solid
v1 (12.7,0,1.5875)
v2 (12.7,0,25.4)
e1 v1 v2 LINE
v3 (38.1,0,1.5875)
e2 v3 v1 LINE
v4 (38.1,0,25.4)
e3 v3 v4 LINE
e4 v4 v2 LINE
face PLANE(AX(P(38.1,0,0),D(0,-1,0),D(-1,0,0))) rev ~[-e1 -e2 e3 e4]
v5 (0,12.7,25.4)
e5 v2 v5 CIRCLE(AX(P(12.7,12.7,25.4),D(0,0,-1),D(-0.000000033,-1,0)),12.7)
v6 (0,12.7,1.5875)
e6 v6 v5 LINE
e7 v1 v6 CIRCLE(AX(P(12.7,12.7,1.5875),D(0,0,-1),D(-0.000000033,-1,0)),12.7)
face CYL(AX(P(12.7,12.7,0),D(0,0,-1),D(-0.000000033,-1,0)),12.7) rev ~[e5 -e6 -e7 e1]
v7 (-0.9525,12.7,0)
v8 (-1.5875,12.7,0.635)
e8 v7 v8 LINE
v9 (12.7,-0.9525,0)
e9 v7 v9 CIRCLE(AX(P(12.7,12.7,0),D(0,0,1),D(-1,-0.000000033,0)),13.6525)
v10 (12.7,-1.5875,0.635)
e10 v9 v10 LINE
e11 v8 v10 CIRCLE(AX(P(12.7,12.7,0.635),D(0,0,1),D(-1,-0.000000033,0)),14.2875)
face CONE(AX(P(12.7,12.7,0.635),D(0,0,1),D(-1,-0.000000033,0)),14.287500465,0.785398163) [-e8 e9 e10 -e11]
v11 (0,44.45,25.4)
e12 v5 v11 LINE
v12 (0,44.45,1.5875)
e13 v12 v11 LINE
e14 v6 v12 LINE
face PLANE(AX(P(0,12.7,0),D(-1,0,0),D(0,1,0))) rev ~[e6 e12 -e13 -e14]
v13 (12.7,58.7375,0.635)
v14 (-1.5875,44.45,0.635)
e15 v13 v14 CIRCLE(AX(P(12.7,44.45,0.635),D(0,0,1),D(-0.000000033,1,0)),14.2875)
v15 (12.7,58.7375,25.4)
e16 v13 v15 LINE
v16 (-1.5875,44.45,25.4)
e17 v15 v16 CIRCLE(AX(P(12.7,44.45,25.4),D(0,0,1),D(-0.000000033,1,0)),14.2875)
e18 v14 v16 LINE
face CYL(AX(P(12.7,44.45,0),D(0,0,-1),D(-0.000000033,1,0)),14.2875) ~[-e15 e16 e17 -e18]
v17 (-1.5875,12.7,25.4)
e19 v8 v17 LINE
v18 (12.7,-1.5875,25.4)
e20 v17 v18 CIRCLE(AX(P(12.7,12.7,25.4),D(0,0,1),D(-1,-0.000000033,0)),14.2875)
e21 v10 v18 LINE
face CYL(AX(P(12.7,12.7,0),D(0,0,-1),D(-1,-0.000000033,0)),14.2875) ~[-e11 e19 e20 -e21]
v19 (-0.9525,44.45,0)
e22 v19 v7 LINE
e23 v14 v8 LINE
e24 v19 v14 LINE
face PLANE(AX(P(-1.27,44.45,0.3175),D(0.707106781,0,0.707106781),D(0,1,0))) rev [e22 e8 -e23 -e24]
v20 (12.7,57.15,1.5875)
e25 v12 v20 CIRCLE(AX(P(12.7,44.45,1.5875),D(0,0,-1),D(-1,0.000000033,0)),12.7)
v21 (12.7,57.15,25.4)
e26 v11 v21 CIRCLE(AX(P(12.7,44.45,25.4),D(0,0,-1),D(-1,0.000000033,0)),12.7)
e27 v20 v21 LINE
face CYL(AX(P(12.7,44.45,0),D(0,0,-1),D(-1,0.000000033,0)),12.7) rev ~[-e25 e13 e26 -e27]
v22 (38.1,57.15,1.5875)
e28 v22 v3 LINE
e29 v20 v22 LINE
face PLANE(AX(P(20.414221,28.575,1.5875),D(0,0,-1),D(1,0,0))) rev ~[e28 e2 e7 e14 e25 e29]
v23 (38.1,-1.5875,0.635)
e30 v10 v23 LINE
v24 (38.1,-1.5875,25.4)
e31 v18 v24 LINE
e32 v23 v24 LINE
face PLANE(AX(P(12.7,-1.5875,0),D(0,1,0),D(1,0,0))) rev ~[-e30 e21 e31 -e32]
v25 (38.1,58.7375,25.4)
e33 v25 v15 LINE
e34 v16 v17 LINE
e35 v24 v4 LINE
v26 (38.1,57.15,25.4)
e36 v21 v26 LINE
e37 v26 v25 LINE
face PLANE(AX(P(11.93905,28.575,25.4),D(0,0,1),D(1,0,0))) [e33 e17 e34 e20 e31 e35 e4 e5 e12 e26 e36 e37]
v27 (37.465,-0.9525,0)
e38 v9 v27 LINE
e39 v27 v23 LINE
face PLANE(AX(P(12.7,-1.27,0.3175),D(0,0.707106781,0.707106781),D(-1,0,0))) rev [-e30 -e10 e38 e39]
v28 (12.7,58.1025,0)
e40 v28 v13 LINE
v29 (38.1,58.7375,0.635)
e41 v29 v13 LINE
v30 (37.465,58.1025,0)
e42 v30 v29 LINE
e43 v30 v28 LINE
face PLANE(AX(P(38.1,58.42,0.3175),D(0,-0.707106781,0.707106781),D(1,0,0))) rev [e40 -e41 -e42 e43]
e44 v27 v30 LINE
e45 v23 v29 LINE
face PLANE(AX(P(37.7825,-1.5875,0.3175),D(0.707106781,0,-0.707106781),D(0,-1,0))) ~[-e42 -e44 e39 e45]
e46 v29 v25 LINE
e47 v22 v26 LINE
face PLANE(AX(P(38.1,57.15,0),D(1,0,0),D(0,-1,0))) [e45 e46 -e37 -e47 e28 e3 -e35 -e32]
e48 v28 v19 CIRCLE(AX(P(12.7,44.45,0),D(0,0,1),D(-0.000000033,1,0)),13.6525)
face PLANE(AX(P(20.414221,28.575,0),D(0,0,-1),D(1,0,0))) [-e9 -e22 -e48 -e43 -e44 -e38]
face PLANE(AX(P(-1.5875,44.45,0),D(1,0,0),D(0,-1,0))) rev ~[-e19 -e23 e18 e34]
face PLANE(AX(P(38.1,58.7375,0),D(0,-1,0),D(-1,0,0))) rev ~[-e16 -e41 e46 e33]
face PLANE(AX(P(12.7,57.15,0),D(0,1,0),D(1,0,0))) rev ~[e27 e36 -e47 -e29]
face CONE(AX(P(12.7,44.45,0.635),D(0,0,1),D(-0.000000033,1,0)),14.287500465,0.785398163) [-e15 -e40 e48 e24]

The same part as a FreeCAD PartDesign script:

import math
import FreeCAD as App
import Part
import Sketcher
from FreeCAD import Vector
Q = App.Units.Quantity


def edges_at(feature, points):
    """Names of the edges that pass closest to the given points."""
    edges = feature.Shape.Edges
    near = lambda p: min(range(len(edges)), key=lambda i: edges[i].distToShape(Part.Vertex(*p))[0])
    return sorted({f"Edge{near(p) + 1}" for p in points})

doc = App.newDocument("Part")
params = doc.addObject("Spreadsheet::Sheet", "Params")
for row, (alias, value) in enumerate([
    ("sketch1_radius", "0.5 in"),
    ("sketch1_width", "1 in"),
    ("sketch1_radius2", "0.5625 in"),
    ("sketch1_height", "1.25 in"),
    ("pad1_length", "1 in"),
    ("sketch2_radius", "0.5 in"),
    ("sketch2_width", "1 in"),
    ("sketch2_height", "1.25 in"),
    ("pad2_length", "0.0625 in"),
    ("chamfer_size", "0.025 in"),
], start=1):
    params.set(f"A{row}", alias)
    params.set(f"B{row}", "=" + value)
    params.setAlias(f"B{row}", alias)

body = doc.addObject("PartDesign::Body", "Body")

# Sketch on XY plane
sketch1 = body.newObject("Sketcher::SketchObject", "Sketch")
sketch1.AttachmentSupport = (doc.getObject("XY_Plane"), [""])
sketch1.MapMode = "FlatFace"
sketch1.addGeometry(Part.LineSegment(Vector(38.1, 0, 0), Vector(12.7, 0, 0)), False)
sketch1.addGeometry(Part.ArcOfCircle(Part.Circle(Vector(12.7, 12.7, 0), Vector(0, 0, 1), 12.7), math.radians(-180), math.radians(-90)), False)
sketch1.addGeometry(Part.LineSegment(Vector(0, 12.7, 0), Vector(0, 44.5, 0)), False)
sketch1.addGeometry(Part.ArcOfCircle(Part.Circle(Vector(12.7, 44.4, 0), Vector(0, 0, 1), 12.7), math.radians(90), math.radians(180)), False)
sketch1.addGeometry(Part.LineSegment(Vector(12.7, 57.1, 0), Vector(38.1, 57.1, 0)), False)
sketch1.addGeometry(Part.LineSegment(Vector(38.1, 57.1, 0), Vector(38.1, 58.7, 0)), False)
sketch1.addGeometry(Part.LineSegment(Vector(38.1, 58.7, 0), Vector(12.7, 58.7, 0)), False)
sketch1.addGeometry(Part.ArcOfCircle(Part.Circle(Vector(12.7, 44.4, 0), Vector(0, 0, 1), 14.3), math.radians(90), math.radians(180)), False)
sketch1.addGeometry(Part.LineSegment(Vector(-1.6, 44.5, 0), Vector(-1.6, 12.7, 0)), False)
sketch1.addGeometry(Part.ArcOfCircle(Part.Circle(Vector(12.7, 12.7, 0), Vector(0, 0, 1), 14.3), math.radians(-180), math.radians(-90)), False)
sketch1.addGeometry(Part.LineSegment(Vector(12.7, -1.6, 0), Vector(38.1, -1.6, 0)), False)
sketch1.addGeometry(Part.LineSegment(Vector(38.1, -1.6, 0), Vector(38.1, 0, 0)), False)
sketch1.addConstraint(Sketcher.Constraint("Tangent", 0, 2, 1, 2))
sketch1.addConstraint(Sketcher.Constraint("Tangent", 1, 1, 2, 1))
sketch1.addConstraint(Sketcher.Constraint("Tangent", 2, 2, 3, 2))
sketch1.addConstraint(Sketcher.Constraint("Tangent", 3, 1, 4, 1))
sketch1.addConstraint(Sketcher.Constraint("Coincident", 4, 2, 5, 1))
sketch1.addConstraint(Sketcher.Constraint("Coincident", 5, 2, 6, 1))
sketch1.addConstraint(Sketcher.Constraint("Tangent", 6, 2, 7, 1))
sketch1.addConstraint(Sketcher.Constraint("Tangent", 7, 2, 8, 1))
sketch1.addConstraint(Sketcher.Constraint("Tangent", 8, 2, 9, 1))
sketch1.addConstraint(Sketcher.Constraint("Tangent", 9, 2, 10, 1))
sketch1.addConstraint(Sketcher.Constraint("Coincident", 10, 2, 11, 1))
sketch1.addConstraint(Sketcher.Constraint("Coincident", 11, 2, 0, 1))
sketch1.addConstraint(Sketcher.Constraint("Horizontal", 0))
sketch1.addConstraint(Sketcher.Constraint("Vertical", 2))
sketch1.addConstraint(Sketcher.Constraint("Horizontal", 4))
sketch1.addConstraint(Sketcher.Constraint("Vertical", 5))
sketch1.addConstraint(Sketcher.Constraint("Horizontal", 6))
sketch1.addConstraint(Sketcher.Constraint("Vertical", 8))
sketch1.addConstraint(Sketcher.Constraint("Horizontal", 10))
sketch1.addConstraint(Sketcher.Constraint("Vertical", 11))
sketch1.addConstraint(Sketcher.Constraint("Coincident", 7, 3, 3, 3))
sketch1.addConstraint(Sketcher.Constraint("Coincident", 9, 3, 1, 3))
sketch1.addConstraint(Sketcher.Constraint("Equal", 1, 3))
sketch1.addConstraint(Sketcher.Constraint("PointOnObject", 0, 2, -1))
sketch1.addConstraint(Sketcher.Constraint("PointOnObject", 1, 1, -2))
sketch1.addConstraint(Sketcher.Constraint("Vertical", 5, 2, 10, 2))
sketch1.addConstraint(Sketcher.Constraint("Radius", 1, Q("0.5 in")))
sketch1.addConstraint(Sketcher.Constraint("DistanceX", 0, 2, 0, 1, Q("1 in")))
sketch1.addConstraint(Sketcher.Constraint("Radius", 7, Q("0.5625 in")))
sketch1.addConstraint(Sketcher.Constraint("DistanceY", 2, 1, 2, 2, Q("1.25 in")))
sketch1.setExpression("Constraints[26]", "Params.sketch1_radius")
sketch1.setExpression("Constraints[27]", "Params.sketch1_width")
sketch1.setExpression("Constraints[28]", "Params.sketch1_radius2")
sketch1.setExpression("Constraints[29]", "Params.sketch1_height")
pad1 = body.newObject("PartDesign::Pad", "Pad")
pad1.Profile = sketch1
pad1.setExpression("Length", "Params.pad1_length")

# Sketch on XY plane
sketch2 = body.newObject("Sketcher::SketchObject", "Sketch001")
sketch2.AttachmentSupport = (doc.getObject("XY_Plane"), [""])
sketch2.MapMode = "FlatFace"
sketch2.addGeometry(Part.LineSegment(Vector(38, 0, 0), Vector(13, 0, 0)), False)
sketch2.addGeometry(Part.ArcOfCircle(Part.Circle(Vector(13, 13, 0), Vector(0, 0, 1), 13), math.radians(-180), math.radians(-90)), False)
sketch2.addGeometry(Part.LineSegment(Vector(0, 13, 0), Vector(0, 44, 0)), False)
sketch2.addGeometry(Part.ArcOfCircle(Part.Circle(Vector(13, 44, 0), Vector(0, 0, 1), 13), math.radians(90), math.radians(180)), False)
sketch2.addGeometry(Part.LineSegment(Vector(13, 57, 0), Vector(38, 57, 0)), False)
sketch2.addGeometry(Part.LineSegment(Vector(38, 57, 0), Vector(38, 0, 0)), False)
sketch2.addConstraint(Sketcher.Constraint("Tangent", 0, 2, 1, 2))
sketch2.addConstraint(Sketcher.Constraint("Tangent", 1, 1, 2, 1))
sketch2.addConstraint(Sketcher.Constraint("Tangent", 2, 2, 3, 2))
sketch2.addConstraint(Sketcher.Constraint("Tangent", 3, 1, 4, 1))
sketch2.addConstraint(Sketcher.Constraint("Coincident", 4, 2, 5, 1))
sketch2.addConstraint(Sketcher.Constraint("Coincident", 5, 2, 0, 1))
sketch2.addConstraint(Sketcher.Constraint("Horizontal", 0))
sketch2.addConstraint(Sketcher.Constraint("Vertical", 2))
sketch2.addConstraint(Sketcher.Constraint("Horizontal", 4))
sketch2.addConstraint(Sketcher.Constraint("Vertical", 5))
sketch2.addConstraint(Sketcher.Constraint("Equal", 1, 3))
sketch2.addConstraint(Sketcher.Constraint("PointOnObject", 0, 2, -1))
sketch2.addConstraint(Sketcher.Constraint("PointOnObject", 1, 1, -2))
sketch2.addConstraint(Sketcher.Constraint("Radius", 1, Q("0.5 in")))
sketch2.addConstraint(Sketcher.Constraint("DistanceX", 0, 2, 0, 1, Q("1 in")))
sketch2.addConstraint(Sketcher.Constraint("DistanceY", 2, 1, 2, 2, Q("1.25 in")))
sketch2.setExpression("Constraints[13]", "Params.sketch2_radius")
sketch2.setExpression("Constraints[14]", "Params.sketch2_width")
sketch2.setExpression("Constraints[15]", "Params.sketch2_height")
pad2 = body.newObject("PartDesign::Pad", "Pad001")
pad2.Profile = sketch2
pad2.setExpression("Length", "Params.pad2_length")
doc.recompute()

chamfer = body.newObject("PartDesign::Chamfer", "Chamfer")
chamfer.Base = (pad2, edges_at(pad2, [
    (25.4, -1.587, 0),
    (38.1, 28.575, 0),
    (25.4, 58.737, 0),
    (2.597, 54.553, 0),
    (-1.587, 28.575, 0),
    (2.597, 2.597, 0),
]))
chamfer.setExpression("Size", "Params.chamfer_size")

doc.recompute()
